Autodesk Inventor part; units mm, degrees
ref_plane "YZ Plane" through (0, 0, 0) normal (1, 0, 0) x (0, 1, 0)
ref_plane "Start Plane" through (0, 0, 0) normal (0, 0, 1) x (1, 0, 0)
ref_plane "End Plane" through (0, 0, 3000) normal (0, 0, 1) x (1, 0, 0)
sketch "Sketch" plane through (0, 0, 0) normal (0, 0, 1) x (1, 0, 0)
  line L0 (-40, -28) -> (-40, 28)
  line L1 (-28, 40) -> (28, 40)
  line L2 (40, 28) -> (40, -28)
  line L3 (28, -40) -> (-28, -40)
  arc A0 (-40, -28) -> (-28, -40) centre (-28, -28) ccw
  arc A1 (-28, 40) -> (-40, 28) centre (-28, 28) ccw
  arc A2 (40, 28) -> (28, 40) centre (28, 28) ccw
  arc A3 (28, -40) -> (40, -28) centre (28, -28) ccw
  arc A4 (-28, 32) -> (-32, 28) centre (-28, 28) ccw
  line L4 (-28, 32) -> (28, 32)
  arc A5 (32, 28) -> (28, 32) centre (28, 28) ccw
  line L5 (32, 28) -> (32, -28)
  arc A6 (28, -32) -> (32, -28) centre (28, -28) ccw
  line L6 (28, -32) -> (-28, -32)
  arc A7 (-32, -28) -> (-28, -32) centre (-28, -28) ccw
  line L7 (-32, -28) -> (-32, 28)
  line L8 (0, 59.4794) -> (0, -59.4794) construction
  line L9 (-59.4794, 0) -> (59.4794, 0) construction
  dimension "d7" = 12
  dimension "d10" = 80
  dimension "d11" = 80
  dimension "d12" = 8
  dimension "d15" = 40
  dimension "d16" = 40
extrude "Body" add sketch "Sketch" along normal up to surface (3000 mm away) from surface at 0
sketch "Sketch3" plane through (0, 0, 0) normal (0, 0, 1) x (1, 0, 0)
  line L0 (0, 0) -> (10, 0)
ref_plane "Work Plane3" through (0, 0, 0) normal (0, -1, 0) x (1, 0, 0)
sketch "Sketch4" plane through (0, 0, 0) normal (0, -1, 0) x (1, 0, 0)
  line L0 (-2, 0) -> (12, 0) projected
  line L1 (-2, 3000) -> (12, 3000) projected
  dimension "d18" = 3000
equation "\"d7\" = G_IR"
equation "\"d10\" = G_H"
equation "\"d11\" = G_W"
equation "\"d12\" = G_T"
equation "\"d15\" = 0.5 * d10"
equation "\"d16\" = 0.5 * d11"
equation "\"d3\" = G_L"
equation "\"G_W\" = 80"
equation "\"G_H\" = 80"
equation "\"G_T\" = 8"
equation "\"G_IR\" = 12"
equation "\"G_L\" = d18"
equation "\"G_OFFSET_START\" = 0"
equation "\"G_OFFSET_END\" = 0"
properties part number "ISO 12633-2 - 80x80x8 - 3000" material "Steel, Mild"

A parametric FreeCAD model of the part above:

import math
import FreeCAD as App
import Part
import Sketcher
from FreeCAD import Vector

doc = App.newDocument("Part")
body = doc.addObject("PartDesign::Body", "Body")

sketch1 = doc.addObject("Sketcher::SketchObject", "Sketch")
body.addObject(sketch1)
sketch1.AttachmentSupport = (doc.XY_Plane, [""])
sketch1.MapMode = "FlatFace"
sketch1.addGeometry([
    Part.LineSegment(Vector(-40, 28, 0), Vector(-40, -28, 0)),
    Part.ArcOfCircle(Part.Circle(Vector(-28, -28, 0), Vector(0, 0, 1), 12), math.radians(180), math.radians(270)),
    Part.LineSegment(Vector(-28, -40, 0), Vector(28, -40, 0)),
    Part.ArcOfCircle(Part.Circle(Vector(28, -28, 0), Vector(0, 0, 1), 12), math.radians(-90), math.radians(0)),
    Part.LineSegment(Vector(40, -28, 0), Vector(40, 28, 0)),
    Part.ArcOfCircle(Part.Circle(Vector(28, 28, 0), Vector(0, 0, 1), 12), math.radians(0), math.radians(90)),
    Part.LineSegment(Vector(28, 40, 0), Vector(-28, 40, 0)),
    Part.ArcOfCircle(Part.Circle(Vector(-28, 28, 0), Vector(0, 0, 1), 12), math.radians(90), math.radians(180)),
    Part.ArcOfCircle(Part.Circle(Vector(-28, 28, 0), Vector(0, 0, 1), 4), math.radians(90), math.radians(180)),
    Part.LineSegment(Vector(-28, 32, 0), Vector(28, 32, 0)),
    Part.ArcOfCircle(Part.Circle(Vector(28, 28, 0), Vector(0, 0, 1), 4), math.radians(0), math.radians(90)),
    Part.LineSegment(Vector(32, 28, 0), Vector(32, -28, 0)),
    Part.ArcOfCircle(Part.Circle(Vector(28, -28, 0), Vector(0, 0, 1), 4), math.radians(-90), math.radians(0)),
    Part.LineSegment(Vector(28, -32, 0), Vector(-28, -32, 0)),
    Part.ArcOfCircle(Part.Circle(Vector(-28, -28, 0), Vector(0, 0, 1), 4), math.radians(180), math.radians(270)),
    Part.LineSegment(Vector(-32, -28, 0), Vector(-32, 28, 0)),
], False)
sketch1.addConstraint([
    Sketcher.Constraint("Tangent", 0, 2, 1, 1),
    Sketcher.Constraint("Tangent", 1, 2, 2, 1),
    Sketcher.Constraint("Tangent", 2, 2, 3, 1),
    Sketcher.Constraint("Tangent", 3, 2, 4, 1),
    Sketcher.Constraint("Tangent", 4, 2, 5, 1),
    Sketcher.Constraint("Tangent", 5, 2, 6, 1),
    Sketcher.Constraint("Tangent", 6, 2, 7, 1),
    Sketcher.Constraint("Tangent", 7, 2, 0, 1),
    Sketcher.Constraint("Tangent", 8, 1, 9, 1),
    Sketcher.Constraint("Tangent", 9, 2, 10, 2),
    Sketcher.Constraint("Tangent", 10, 1, 11, 1),
    Sketcher.Constraint("Tangent", 11, 2, 12, 2),
    Sketcher.Constraint("Tangent", 12, 1, 13, 1),
    Sketcher.Constraint("Tangent", 13, 2, 14, 2),
    Sketcher.Constraint("Tangent", 14, 1, 15, 1),
    Sketcher.Constraint("Tangent", 15, 2, 8, 2),
    Sketcher.Constraint("Vertical", 0),
    Sketcher.Constraint("Horizontal", 2),
    Sketcher.Constraint("Vertical", 4),
    Sketcher.Constraint("Horizontal", 6),
    Sketcher.Constraint("Horizontal", 9),
    Sketcher.Constraint("Vertical", 11),
    Sketcher.Constraint("Horizontal", 13),
    Sketcher.Constraint("Vertical", 15),
    Sketcher.Constraint("Coincident", 8, 3, 7, 3),
    Sketcher.Constraint("Coincident", 10, 3, 5, 3),
    Sketcher.Constraint("Coincident", 12, 3, 3, 3),
    Sketcher.Constraint("Equal", 1, 3),
    Sketcher.Constraint("Equal", 3, 5),
    Sketcher.Constraint("Equal", 5, 7),
    Sketcher.Constraint("Equal", 12, 14),
    Sketcher.Constraint("Symmetric", 1, 3, 5, 3, -1, 1),
    Sketcher.Constraint("Equal", 13, 0),
    Sketcher.Constraint("Radius", 1, 12.0),
    Sketcher.Constraint("Radius", 8, 4.0),
    Sketcher.Constraint("DistanceX", 0, 2, -1, 1, 40.0),
])
pad1 = doc.addObject("PartDesign::Pad", "Pad")
body.addObject(pad1)
pad1.Profile = sketch1
pad1.Length = 3000

doc.recompute()
